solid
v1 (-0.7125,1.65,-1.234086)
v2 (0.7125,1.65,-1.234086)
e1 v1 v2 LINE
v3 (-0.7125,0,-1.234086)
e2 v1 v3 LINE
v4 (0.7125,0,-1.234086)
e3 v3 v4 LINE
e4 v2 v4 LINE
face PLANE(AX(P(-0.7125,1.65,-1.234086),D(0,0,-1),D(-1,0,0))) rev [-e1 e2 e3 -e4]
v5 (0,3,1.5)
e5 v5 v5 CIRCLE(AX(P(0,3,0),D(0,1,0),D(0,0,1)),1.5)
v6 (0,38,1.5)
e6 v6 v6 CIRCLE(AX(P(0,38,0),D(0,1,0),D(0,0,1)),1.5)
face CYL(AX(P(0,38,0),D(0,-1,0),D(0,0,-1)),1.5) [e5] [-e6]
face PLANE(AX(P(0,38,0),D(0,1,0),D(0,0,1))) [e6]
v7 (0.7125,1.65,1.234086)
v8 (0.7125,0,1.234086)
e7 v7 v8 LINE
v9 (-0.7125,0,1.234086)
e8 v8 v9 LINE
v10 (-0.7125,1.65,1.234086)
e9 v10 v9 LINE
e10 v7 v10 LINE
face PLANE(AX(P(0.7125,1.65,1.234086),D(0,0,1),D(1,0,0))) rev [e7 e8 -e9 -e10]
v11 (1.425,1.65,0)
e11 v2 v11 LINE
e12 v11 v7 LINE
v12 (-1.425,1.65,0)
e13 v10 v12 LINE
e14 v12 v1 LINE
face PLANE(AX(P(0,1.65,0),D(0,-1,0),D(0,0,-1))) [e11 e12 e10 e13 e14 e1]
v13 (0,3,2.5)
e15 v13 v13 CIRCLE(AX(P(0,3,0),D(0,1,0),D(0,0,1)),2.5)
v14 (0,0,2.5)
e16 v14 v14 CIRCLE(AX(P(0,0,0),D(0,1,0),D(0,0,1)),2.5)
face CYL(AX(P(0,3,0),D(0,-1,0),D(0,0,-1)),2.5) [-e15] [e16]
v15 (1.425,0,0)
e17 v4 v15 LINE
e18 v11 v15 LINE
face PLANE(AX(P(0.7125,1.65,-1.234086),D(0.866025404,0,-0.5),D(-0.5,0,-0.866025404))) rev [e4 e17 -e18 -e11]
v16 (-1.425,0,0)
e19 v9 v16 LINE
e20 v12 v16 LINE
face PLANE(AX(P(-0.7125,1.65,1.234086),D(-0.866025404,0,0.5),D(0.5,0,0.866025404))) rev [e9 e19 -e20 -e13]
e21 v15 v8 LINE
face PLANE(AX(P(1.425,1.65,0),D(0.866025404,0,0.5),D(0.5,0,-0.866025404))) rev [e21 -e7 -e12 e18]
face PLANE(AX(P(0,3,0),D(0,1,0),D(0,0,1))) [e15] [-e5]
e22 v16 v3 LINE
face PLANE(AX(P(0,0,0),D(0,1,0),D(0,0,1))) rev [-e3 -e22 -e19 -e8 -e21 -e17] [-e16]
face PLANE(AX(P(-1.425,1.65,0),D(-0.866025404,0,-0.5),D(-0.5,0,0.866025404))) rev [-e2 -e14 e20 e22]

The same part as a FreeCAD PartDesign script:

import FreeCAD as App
import Part
import Sketcher

V = App.Vector
Q = App.Units.Quantity


def add_polygon(sketch, points):
    """Adds a closed chain of lines whose ends are joined by coincident constraints."""
    first, n = sketch.GeometryCount, len(points)
    for a, b in zip(points, points[1:] + points[:1]):
        sketch.addGeometry(Part.LineSegment(App.Vector(*a, 0), App.Vector(*b, 0)), False)
    for i in range(n):
        sketch.addConstraint(Sketcher.Constraint("Coincident", first + i, 2, first + (i + 1) % n, 1))

doc = App.newDocument("Part")
body = doc.addObject("PartDesign::Body", "Body")

sketch1 = body.newObject("Sketcher::SketchObject", "Sketch")
sketch1.AttachmentSupport = (doc.getObject("XZ_Plane"), [""])
sketch1.MapMode = "FlatFace"
sketch1.addGeometry(Part.Circle(V(0, 0, 0), V(0, 0, 1), 2.5), False)
sketch1.addConstraint(Sketcher.Constraint("Coincident", 0, 3, -1, 1))
sketch1.addConstraint(Sketcher.Constraint("Diameter", 0, Q("5 mm")))
pad1 = body.newObject("PartDesign::Pad", "Pad")
pad1.Profile = sketch1
pad1.Length = 3
pad1.Reversed = True

sketch2 = body.newObject("Sketcher::SketchObject", "Sketch001")
sketch2.AttachmentSupport = (doc.getObject("XZ_Plane"), [""])
sketch2.MapMode = "FlatFace"
sketch2.AttachmentOffset = App.Placement(V(0, 0, -3), App.Rotation())
sketch2.addGeometry(Part.Circle(V(0, 0, 0), V(0, 0, 1), 1.5), False)
sketch2.addConstraint(Sketcher.Constraint("Coincident", 0, 3, -1, 1))
sketch2.addConstraint(Sketcher.Constraint("Diameter", 0, Q("3 mm")))
pad2 = body.newObject("PartDesign::Pad", "Pad001")
pad2.Profile = sketch2
pad2.Length = 35
pad2.Reversed = True

sketch3 = body.newObject("Sketcher::SketchObject", "Sketch002")
sketch3.AttachmentSupport = (doc.getObject("XZ_Plane"), [""])
sketch3.MapMode = "FlatFace"
add_polygon(sketch3, [(1.4, 0), (0.7, 1.2), (-0.7, 1.2), (-1.4, 0), (-0.7, -1.2), (0.7, -1.2)])
sketch3.addConstraint(Sketcher.Constraint("Horizontal", 1))
sketch3.addConstraint(Sketcher.Constraint("Horizontal", 4))
sketch3.addConstraint(Sketcher.Constraint("Symmetric", 0, 2, 3, 2, -1, 1))
sketch3.addConstraint(Sketcher.Constraint("Symmetric", 2, 2, 5, 2, -1, 1))
sketch3.addConstraint(Sketcher.Constraint("PointOnObject", 2, 2, -1))
sketch3.addConstraint(Sketcher.Constraint("Parallel", 2, 5))
sketch3.addConstraint(Sketcher.Constraint("Vertical", 1, 2, 3, 2))
sketch3.addConstraint(Sketcher.Constraint("Angle", 0, Q("120 deg")))
sketch3.addConstraint(Sketcher.Constraint("DistanceX", 1, 2, 1, 1, Q("1.425 mm")))
sketch3.addConstraint(Sketcher.Constraint("DistanceX", 2, 2, 5, 2, Q("2.85 mm")))
pocket1 = body.newObject("PartDesign::Pocket", "Pocket")
pocket1.Profile = sketch3
pocket1.Length = 1.65

doc.recompute()
